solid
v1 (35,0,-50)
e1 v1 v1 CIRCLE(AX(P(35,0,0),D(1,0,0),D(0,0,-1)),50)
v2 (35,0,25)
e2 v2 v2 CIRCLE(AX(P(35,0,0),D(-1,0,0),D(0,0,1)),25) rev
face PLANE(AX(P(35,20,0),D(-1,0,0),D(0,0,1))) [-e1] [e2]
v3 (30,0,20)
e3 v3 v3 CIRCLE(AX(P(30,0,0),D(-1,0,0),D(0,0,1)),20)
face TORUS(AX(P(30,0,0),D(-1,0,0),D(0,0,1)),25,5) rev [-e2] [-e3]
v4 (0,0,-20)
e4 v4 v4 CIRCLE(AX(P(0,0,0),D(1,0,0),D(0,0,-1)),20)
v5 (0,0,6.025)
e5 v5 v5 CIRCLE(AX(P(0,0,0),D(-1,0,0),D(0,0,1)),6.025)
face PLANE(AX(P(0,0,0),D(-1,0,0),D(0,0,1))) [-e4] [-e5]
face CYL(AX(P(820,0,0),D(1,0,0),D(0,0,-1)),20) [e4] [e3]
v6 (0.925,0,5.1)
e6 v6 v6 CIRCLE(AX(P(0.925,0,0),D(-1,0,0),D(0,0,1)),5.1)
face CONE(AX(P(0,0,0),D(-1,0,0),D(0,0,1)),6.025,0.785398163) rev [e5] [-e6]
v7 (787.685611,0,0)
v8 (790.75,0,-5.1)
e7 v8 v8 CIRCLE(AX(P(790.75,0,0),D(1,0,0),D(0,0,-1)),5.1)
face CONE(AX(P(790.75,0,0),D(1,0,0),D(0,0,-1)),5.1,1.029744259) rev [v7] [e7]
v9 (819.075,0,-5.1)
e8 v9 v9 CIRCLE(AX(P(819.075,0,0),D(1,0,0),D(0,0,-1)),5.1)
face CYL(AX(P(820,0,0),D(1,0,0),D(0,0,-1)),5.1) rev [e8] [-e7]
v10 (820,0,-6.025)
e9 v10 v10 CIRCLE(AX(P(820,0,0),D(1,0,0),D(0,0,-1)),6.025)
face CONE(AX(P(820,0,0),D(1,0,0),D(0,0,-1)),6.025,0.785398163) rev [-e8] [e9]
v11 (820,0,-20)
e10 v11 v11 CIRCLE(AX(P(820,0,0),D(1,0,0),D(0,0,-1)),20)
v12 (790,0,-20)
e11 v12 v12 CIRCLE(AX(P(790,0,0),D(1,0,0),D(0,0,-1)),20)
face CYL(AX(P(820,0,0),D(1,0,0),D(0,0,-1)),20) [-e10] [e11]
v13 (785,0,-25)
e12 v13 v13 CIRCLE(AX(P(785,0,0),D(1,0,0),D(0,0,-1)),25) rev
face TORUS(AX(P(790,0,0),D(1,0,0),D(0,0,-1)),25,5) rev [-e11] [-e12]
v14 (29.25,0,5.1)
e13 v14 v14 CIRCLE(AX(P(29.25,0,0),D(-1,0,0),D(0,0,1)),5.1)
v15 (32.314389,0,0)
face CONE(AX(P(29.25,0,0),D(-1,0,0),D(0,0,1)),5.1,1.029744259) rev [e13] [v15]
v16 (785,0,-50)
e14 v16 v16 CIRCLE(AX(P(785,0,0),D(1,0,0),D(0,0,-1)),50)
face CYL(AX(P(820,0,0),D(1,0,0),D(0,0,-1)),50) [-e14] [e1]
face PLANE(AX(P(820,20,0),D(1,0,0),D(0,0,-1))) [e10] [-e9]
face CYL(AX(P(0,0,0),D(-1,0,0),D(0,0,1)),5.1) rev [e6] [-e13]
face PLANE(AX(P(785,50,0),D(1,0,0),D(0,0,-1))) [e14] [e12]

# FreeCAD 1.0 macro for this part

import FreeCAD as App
import Part
import Sketcher


def edges_at(feature, points):
    """Names of the edges that pass closest to the given points."""
    edges = feature.Shape.Edges
    near = lambda p: min(range(len(edges)), key=lambda i: edges[i].distToShape(Part.Vertex(*p))[0])
    return sorted({f"Edge{near(p) + 1}" for p in points})

doc = App.newDocument("Part")
body = doc.addObject("PartDesign::Body", "Body")

sketch1 = doc.addObject("Sketcher::SketchObject", "Sketch")
body.addObject(sketch1)
sketch1.AttachmentSupport = (doc.XY_Plane, [""])
sketch1.MapMode = "FlatFace"
sketch1.addGeometry([
    Part.LineSegment(App.Vector(0, 20, 0), App.Vector(0, 0, 0)),
    Part.LineSegment(App.Vector(0, 0, 0), App.Vector(820, 0, 0)),
    Part.LineSegment(App.Vector(820, 0, 0), App.Vector(820, 20, 0)),
    Part.LineSegment(App.Vector(820, 20, 0), App.Vector(785, 20, 0)),
    Part.LineSegment(App.Vector(785, 20, 0), App.Vector(785, 50, 0)),
    Part.LineSegment(App.Vector(785, 50, 0), App.Vector(35, 50, 0)),
    Part.LineSegment(App.Vector(35, 50, 0), App.Vector(35, 20, 0)),
    Part.LineSegment(App.Vector(35, 20, 0), App.Vector(0, 20, 0)),
], False)
sketch1.addConstraint([
    Sketcher.Constraint("Coincident", 0, 2, 1, 1),
    Sketcher.Constraint("Coincident", 1, 2, 2, 1),
    Sketcher.Constraint("Coincident", 2, 2, 3, 1),
    Sketcher.Constraint("Coincident", 3, 2, 4, 1),
    Sketcher.Constraint("Coincident", 4, 2, 5, 1),
    Sketcher.Constraint("Coincident", 5, 2, 6, 1),
    Sketcher.Constraint("Coincident", 6, 2, 7, 1),
    Sketcher.Constraint("Coincident", 7, 2, 0, 1),
    Sketcher.Constraint("Vertical", 0),
    Sketcher.Constraint("Horizontal", 1),
    Sketcher.Constraint("Vertical", 2),
    Sketcher.Constraint("Horizontal", 3),
    Sketcher.Constraint("Vertical", 4),
    Sketcher.Constraint("Horizontal", 5),
    Sketcher.Constraint("Vertical", 6),
    Sketcher.Constraint("Horizontal", 7),
    Sketcher.Constraint("Coincident", 0, 2, -1, 1),
    Sketcher.Constraint("Horizontal", 3, 2, 6, 2),
    Sketcher.Constraint("Equal", 3, 7),
    Sketcher.Constraint("DistanceX", 1, 1, 1, 2, 820.0),
    Sketcher.Constraint("DistanceX", 3, 2, 3, 1, 35.0),
    Sketcher.Constraint("DistanceY", 0, 2, 0, 1, 20.0),
    Sketcher.Constraint("DistanceY", 4, 1, 4, 2, 30.0),
])
revolution = doc.addObject("PartDesign::Revolution", "Revolution")
body.addObject(revolution)
revolution.Profile = sketch1
revolution.ReferenceAxis = (sketch1, ["H_Axis"])
revolution.Angle = 360
doc.recompute()

fillet = doc.addObject("PartDesign::Fillet", "Fillet")
body.addObject(fillet)
fillet.Base = (revolution, edges_at(revolution, [(785, 0, 20), (35, 0, 20)]))
fillet.Radius = 5

sketch2 = doc.addObject("Sketcher::SketchObject", "Sketch001")
body.addObject(sketch2)
sketch2.AttachmentSupport = (doc.YZ_Plane, [""])
sketch2.MapMode = "FlatFace"
sketch2.addGeometry(Part.Circle(App.Vector(0, 0, 0), App.Vector(0, 0, 1), 5), False)
sketch2.addConstraint([
    Sketcher.Constraint("Coincident", 0, 3, -1, 1),
    Sketcher.Constraint("Diameter", 0, 10.2),
])
doc.recompute()
hole = doc.addObject("PartDesign::Hole", "Hole")
body.addObject(hole)
hole.Profile = sketch2
hole.ThreadType = "None"
hole.Diameter = 10.2
hole.DepthType = "Dimension"
hole.Depth = 29.25
hole.DrillPoint = "Angled"
hole.DrillPointAngle = 118
hole.HoleCutType = "Countersink"
hole.HoleCutDiameter = 12.05
hole.HoleCutCountersinkAngle = 90
hole.Reversed = True

sketch3 = doc.addObject("Sketcher::SketchObject", "Sketch002")
body.addObject(sketch3)
sketch3.AttachmentSupport = (doc.YZ_Plane, [""])
sketch3.MapMode = "FlatFace"
sketch3.AttachmentOffset = App.Placement(App.Vector(0, 0, 820), App.Rotation())
sketch3.addGeometry(Part.Circle(App.Vector(0, 0, 0), App.Vector(0, 0, 1), 5), False)
sketch3.addConstraint([
    Sketcher.Constraint("Coincident", 0, 3, -1, 1),
    Sketcher.Constraint("Diameter", 0, 10.2),
])
doc.recompute()
hole2 = doc.addObject("PartDesign::Hole", "Hole001")
body.addObject(hole2)
hole2.Profile = sketch3
hole2.ThreadType = "None"
hole2.Diameter = 10.2
hole2.DepthType = "Dimension"
hole2.Depth = 29.25
hole2.DrillPoint = "Angled"
hole2.DrillPointAngle = 118
hole2.HoleCutType = "Countersink"
hole2.HoleCutDiameter = 12.05
hole2.HoleCutCountersinkAngle = 90

doc.recompute()
